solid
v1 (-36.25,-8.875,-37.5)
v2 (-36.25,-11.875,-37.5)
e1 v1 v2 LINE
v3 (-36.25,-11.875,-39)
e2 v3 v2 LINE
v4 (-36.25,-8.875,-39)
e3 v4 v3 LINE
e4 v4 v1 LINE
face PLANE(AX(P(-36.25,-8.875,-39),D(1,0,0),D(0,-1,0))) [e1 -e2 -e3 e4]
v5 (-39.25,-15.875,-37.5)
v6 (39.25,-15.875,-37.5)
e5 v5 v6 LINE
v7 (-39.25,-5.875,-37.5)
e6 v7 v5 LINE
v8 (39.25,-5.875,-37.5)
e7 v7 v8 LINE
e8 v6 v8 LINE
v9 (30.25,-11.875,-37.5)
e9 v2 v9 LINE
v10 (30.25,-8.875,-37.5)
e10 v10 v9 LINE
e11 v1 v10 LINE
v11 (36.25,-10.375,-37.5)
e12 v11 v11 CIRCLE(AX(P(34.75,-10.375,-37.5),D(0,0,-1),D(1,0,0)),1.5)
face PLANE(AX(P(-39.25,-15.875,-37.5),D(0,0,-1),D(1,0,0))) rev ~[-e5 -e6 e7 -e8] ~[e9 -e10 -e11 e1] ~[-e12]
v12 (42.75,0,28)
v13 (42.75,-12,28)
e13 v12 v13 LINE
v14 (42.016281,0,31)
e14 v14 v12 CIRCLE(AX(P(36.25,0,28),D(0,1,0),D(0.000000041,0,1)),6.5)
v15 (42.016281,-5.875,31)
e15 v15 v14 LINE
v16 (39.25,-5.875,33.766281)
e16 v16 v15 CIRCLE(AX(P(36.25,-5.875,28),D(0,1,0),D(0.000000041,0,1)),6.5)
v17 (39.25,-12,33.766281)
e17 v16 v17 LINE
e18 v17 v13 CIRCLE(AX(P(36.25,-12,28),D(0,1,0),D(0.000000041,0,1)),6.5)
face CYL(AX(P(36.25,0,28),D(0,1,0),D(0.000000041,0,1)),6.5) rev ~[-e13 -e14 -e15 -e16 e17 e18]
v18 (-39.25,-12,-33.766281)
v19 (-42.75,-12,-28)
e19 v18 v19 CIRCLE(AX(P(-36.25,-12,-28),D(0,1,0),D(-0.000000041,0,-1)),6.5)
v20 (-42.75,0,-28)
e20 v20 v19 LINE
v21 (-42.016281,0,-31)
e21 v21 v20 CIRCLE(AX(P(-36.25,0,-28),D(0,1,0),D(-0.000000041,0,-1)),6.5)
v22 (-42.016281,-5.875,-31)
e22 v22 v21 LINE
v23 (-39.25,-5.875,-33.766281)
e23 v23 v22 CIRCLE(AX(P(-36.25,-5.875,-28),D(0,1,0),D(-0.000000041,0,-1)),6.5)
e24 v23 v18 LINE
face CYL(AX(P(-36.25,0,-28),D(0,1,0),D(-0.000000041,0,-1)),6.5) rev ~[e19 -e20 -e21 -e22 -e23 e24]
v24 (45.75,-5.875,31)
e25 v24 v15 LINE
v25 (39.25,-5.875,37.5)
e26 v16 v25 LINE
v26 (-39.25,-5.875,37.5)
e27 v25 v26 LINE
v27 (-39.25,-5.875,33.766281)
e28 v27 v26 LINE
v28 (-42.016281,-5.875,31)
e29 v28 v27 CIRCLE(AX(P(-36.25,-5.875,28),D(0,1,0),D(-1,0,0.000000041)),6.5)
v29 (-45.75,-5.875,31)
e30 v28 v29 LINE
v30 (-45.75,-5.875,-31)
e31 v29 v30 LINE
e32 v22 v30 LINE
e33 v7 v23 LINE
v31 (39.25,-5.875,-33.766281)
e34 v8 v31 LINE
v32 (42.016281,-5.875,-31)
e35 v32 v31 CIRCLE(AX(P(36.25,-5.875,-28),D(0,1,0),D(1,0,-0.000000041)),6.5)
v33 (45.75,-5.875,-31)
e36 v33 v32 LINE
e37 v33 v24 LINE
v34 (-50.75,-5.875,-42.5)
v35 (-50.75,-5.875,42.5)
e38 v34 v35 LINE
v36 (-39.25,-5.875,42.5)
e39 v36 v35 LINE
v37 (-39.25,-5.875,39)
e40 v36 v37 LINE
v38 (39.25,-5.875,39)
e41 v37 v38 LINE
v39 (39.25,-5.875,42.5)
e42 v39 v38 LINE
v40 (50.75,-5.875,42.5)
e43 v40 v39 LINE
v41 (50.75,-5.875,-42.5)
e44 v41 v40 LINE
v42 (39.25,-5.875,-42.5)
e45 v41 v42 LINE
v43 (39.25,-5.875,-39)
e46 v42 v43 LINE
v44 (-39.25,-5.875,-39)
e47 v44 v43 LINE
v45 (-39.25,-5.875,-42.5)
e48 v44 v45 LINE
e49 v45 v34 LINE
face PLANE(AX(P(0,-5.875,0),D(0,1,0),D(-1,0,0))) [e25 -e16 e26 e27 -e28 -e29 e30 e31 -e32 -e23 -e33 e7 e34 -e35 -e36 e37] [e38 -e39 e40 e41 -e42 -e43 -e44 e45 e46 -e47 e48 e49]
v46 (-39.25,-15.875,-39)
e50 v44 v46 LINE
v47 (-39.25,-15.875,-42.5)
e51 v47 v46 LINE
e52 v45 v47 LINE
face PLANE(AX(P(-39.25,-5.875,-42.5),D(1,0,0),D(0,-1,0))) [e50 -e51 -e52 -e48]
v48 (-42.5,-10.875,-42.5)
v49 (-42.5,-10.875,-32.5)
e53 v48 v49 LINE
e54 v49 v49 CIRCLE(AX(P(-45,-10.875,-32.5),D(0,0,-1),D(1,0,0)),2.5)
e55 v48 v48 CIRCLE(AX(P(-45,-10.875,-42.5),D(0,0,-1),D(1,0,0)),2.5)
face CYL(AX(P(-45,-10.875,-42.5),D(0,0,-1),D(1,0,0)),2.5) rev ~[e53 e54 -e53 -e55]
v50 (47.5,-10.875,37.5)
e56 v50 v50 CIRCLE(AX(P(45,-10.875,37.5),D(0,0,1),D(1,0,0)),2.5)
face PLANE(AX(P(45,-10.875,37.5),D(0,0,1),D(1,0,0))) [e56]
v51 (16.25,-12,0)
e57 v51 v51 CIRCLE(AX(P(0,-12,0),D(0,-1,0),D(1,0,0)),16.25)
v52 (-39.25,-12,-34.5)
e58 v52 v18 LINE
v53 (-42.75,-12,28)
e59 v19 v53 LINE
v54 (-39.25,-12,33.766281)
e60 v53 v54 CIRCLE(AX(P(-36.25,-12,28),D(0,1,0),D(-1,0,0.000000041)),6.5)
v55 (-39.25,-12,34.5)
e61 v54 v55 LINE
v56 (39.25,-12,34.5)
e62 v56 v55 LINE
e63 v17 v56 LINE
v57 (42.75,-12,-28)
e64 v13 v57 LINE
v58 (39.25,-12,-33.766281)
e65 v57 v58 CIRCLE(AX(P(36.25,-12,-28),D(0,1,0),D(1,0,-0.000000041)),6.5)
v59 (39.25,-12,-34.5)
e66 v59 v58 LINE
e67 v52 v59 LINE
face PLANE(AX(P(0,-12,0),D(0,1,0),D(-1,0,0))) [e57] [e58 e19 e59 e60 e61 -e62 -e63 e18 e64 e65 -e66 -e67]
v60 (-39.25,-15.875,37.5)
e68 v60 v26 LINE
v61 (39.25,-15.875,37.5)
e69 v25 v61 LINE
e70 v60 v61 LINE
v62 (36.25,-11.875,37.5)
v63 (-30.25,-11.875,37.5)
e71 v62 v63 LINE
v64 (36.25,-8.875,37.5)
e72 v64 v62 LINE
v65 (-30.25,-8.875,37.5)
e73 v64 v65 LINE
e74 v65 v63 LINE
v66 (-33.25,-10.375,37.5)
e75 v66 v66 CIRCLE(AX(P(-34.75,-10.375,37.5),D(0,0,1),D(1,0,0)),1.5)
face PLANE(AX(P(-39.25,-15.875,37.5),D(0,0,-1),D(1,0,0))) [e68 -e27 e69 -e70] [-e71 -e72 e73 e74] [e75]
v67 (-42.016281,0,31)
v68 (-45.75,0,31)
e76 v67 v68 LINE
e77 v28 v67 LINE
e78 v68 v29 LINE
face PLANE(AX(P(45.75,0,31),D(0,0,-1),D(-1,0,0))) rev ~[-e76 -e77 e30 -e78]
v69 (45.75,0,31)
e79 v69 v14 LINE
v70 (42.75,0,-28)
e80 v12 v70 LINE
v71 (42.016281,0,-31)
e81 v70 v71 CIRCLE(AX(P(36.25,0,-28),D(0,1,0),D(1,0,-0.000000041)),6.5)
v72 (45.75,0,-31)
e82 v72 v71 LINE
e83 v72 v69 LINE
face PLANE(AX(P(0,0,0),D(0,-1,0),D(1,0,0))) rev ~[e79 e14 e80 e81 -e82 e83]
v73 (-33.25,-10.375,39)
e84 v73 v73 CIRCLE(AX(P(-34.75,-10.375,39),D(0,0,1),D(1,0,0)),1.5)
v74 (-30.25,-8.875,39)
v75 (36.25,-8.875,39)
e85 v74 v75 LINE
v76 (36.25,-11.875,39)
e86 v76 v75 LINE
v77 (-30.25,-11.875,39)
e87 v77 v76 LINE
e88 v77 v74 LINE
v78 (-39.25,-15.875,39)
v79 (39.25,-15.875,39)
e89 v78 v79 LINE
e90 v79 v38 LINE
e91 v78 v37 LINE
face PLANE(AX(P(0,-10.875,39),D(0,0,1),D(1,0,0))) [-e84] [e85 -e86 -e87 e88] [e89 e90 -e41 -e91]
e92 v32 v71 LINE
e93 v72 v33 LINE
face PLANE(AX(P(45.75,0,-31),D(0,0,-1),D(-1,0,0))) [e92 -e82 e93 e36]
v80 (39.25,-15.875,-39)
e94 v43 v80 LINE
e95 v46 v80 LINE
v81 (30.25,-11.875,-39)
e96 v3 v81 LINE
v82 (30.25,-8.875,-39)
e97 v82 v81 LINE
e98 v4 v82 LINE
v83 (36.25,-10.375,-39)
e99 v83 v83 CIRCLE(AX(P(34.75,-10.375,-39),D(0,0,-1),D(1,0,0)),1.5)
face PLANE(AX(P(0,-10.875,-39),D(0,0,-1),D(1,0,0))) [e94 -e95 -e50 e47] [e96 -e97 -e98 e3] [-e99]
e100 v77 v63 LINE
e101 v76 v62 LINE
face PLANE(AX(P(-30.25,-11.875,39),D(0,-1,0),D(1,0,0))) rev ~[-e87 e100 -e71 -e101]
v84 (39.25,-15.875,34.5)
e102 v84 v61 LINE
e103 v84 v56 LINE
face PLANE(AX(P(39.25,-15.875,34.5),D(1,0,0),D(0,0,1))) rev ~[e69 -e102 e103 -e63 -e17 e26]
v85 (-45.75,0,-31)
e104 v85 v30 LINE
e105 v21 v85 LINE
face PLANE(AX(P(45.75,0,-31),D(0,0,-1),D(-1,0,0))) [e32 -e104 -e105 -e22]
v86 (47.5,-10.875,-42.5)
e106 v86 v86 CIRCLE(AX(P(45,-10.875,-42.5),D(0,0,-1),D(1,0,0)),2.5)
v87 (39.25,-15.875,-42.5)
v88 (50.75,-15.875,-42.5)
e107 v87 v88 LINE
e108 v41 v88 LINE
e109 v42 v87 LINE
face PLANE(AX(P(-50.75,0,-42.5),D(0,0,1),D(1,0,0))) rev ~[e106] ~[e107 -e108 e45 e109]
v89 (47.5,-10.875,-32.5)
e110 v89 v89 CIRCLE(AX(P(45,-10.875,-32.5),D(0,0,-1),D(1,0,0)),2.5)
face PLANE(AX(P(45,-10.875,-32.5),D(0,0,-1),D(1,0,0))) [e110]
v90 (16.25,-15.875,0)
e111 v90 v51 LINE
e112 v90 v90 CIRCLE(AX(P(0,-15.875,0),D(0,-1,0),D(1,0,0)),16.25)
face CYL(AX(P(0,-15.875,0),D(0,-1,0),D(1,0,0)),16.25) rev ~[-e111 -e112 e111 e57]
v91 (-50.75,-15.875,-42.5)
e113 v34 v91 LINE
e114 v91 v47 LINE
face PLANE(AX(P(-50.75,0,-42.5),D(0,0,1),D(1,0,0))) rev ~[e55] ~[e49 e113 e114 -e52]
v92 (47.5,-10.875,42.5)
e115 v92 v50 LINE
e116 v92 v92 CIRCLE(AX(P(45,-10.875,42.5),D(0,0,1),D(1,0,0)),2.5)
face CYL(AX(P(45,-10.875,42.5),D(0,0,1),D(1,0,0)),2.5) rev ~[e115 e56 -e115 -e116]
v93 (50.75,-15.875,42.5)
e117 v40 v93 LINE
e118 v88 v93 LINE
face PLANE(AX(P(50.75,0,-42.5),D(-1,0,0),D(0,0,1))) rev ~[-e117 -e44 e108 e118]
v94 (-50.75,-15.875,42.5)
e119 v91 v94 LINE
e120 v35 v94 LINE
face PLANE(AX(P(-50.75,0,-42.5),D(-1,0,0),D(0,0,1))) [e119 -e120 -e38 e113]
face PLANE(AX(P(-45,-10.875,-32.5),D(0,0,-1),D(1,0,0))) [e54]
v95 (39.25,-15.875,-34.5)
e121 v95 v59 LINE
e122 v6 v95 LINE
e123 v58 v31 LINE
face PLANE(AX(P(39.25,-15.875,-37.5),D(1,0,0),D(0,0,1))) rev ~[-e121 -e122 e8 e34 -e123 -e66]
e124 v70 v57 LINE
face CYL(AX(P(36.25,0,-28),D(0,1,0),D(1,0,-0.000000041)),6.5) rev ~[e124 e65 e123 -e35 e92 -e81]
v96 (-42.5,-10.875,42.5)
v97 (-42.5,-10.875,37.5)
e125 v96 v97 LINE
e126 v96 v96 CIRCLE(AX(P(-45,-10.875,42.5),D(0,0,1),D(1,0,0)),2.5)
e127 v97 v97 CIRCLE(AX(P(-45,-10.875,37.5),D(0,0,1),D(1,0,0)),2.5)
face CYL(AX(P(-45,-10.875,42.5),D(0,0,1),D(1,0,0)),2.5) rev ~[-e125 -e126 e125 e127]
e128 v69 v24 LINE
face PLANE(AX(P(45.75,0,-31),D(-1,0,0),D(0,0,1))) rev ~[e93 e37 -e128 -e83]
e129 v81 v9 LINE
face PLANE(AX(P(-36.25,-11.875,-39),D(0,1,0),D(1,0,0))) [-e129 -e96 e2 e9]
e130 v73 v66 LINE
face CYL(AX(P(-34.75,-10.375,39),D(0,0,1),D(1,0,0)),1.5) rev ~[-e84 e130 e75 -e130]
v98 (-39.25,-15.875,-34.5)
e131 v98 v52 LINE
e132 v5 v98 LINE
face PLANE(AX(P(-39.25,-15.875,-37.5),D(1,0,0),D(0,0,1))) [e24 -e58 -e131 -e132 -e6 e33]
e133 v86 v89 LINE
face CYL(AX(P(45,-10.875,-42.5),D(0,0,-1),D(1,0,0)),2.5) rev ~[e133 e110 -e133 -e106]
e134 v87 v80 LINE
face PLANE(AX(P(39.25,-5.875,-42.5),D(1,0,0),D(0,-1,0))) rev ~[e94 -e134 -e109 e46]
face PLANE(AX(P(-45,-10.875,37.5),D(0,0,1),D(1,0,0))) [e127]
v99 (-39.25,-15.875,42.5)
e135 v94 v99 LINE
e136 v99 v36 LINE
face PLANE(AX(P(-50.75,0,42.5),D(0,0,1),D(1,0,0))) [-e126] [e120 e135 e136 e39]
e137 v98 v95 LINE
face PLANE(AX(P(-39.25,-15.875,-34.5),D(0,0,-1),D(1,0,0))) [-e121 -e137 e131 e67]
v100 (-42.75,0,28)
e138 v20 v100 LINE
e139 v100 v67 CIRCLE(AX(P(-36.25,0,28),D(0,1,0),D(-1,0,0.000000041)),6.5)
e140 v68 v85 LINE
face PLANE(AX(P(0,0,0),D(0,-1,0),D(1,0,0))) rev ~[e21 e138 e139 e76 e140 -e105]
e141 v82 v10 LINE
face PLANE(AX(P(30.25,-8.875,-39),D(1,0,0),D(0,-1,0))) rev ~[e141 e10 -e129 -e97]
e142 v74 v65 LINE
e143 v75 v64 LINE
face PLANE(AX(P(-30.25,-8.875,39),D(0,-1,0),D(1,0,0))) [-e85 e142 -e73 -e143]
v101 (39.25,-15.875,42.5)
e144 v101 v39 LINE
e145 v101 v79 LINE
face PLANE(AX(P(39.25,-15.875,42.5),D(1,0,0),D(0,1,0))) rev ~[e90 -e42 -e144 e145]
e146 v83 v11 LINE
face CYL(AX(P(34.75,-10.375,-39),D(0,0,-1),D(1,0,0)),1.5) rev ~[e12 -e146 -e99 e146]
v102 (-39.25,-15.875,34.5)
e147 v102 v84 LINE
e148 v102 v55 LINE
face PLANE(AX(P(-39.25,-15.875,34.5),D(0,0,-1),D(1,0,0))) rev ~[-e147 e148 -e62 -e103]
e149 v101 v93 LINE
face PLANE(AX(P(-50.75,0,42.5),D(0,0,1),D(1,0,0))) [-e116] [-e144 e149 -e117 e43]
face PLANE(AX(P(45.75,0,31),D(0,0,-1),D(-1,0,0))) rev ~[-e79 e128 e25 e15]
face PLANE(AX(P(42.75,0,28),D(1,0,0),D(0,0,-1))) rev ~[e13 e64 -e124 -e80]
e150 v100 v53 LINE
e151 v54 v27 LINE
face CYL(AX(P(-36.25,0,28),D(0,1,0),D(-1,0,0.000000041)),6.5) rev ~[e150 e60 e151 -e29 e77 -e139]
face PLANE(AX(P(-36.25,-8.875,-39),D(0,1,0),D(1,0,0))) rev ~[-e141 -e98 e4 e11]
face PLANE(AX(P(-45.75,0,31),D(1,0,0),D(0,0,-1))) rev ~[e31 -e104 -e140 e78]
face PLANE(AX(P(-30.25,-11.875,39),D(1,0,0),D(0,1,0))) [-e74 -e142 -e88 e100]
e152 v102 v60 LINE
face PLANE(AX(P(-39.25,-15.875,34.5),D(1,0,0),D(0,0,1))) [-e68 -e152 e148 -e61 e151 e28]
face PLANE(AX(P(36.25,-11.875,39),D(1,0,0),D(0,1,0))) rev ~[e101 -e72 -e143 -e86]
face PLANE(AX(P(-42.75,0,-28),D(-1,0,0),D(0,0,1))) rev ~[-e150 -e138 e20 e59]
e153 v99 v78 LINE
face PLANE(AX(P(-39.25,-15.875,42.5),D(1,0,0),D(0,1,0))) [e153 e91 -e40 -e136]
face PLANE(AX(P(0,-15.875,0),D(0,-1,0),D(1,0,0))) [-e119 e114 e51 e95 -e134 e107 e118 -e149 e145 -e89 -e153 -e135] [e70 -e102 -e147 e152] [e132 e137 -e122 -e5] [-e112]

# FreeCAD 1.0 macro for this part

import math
import FreeCAD as App
import Part
import Sketcher

V = App.Vector
Q = App.Units.Quantity

doc = App.newDocument("Part")
body = doc.addObject("PartDesign::Body", "Body")

# Sketch on XZ plane
sketch1 = body.newObject("Sketcher::SketchObject", "Sketch")
sketch1.AttachmentSupport = (doc.getObject("XZ_Plane"), [""])
sketch1.MapMode = "FlatFace"
sketch1.addGeometry([
    Part.LineSegment(V(-50.75, 42.5, 0), V(-50.75, -42.5, 0)),
    Part.LineSegment(V(-50.75, -42.5, 0), V(50.75, -42.5, 0)),
    Part.LineSegment(V(50.75, -42.5, 0), V(50.75, 42.5, 0)),
    Part.LineSegment(V(50.75, 42.5, 0), V(-50.75, 42.5, 0)),
], False)
sketch1.addConstraint([
    Sketcher.Constraint("Coincident", 0, 2, 1, 1),
    Sketcher.Constraint("Coincident", 1, 2, 2, 1),
    Sketcher.Constraint("Coincident", 2, 2, 3, 1),
    Sketcher.Constraint("Coincident", 3, 2, 0, 1),
    Sketcher.Constraint("Vertical", 0),
    Sketcher.Constraint("Horizontal", 1),
    Sketcher.Constraint("Vertical", 2),
    Sketcher.Constraint("Horizontal", 3),
    Sketcher.Constraint("Symmetric", 0, 2, 2, 2, -1, 1),
    Sketcher.Constraint("DistanceY", 0, 2, 0, 1, Q("85 mm")),
    Sketcher.Constraint("DistanceX", 1, 1, 1, 2, Q("101.5 mm")),
])
pad1 = body.newObject("PartDesign::Pad", "Pad")
pad1.Profile = sketch1
pad1.Length = 15.875

# Sketch on XZ plane
sketch2 = body.newObject("Sketcher::SketchObject", "Sketch001")
sketch2.AttachmentSupport = (doc.getObject("XZ_Plane"), [""])
sketch2.MapMode = "FlatFace"
sketch2.AttachmentOffset = App.Placement(V(0, 0, 15.875), App.Rotation())
sketch2.addGeometry(Part.Circle(V(0, 0, 0), V(0, 0, 1), 16.25), False)
sketch2.addConstraint([
    Sketcher.Constraint("Coincident", 0, 3, -1, 1),
    Sketcher.Constraint("Diameter", 0, Q("32.5 mm")),
])
pocket1 = body.newObject("PartDesign::Pocket", "Pocket")
pocket1.Profile = sketch2
pocket1.Length = 25

# Sketch on XZ plane
sketch3 = body.newObject("Sketcher::SketchObject", "Sketch002")
sketch3.AttachmentSupport = (doc.getObject("XZ_Plane"), [""])
sketch3.MapMode = "FlatFace"
sketch3.addGeometry([
    Part.LineSegment(V(50.75, 42.5, 0), V(50.75, -42.5, 0)),  # 0
    Part.LineSegment(V(50.75, -42.5, 0), V(-50.75, -42.5, 0)),  # 1
    Part.LineSegment(V(-50.75, -42.5, 0), V(-50.75, 42.5, 0)),  # 2
    Part.LineSegment(V(-50.75, 42.5, 0), V(50.75, 42.5, 0)),  # 3
    Part.ArcOfCircle(Part.Circle(V(39.25, -31, 0), V(0, 0, 1), 6.5), math.radians(-89.999998), math.radians(-0.000002)),  # 4
    Part.LineSegment(V(45.75, -31, 0), V(45.75, 31, 0)),  # 5
    Part.ArcOfCircle(Part.Circle(V(39.25, 31, 0), V(0, 0, 1), 6.5), math.radians(0.000002), math.radians(89.999998)),  # 6
    Part.LineSegment(V(39.25, 37.5, 0), V(-39.25, 37.5, 0)),  # 7
    Part.ArcOfCircle(Part.Circle(V(-39.25, 31, 0), V(0, 0, 1), 6.5), math.radians(90.000002), math.radians(179.999998)),  # 8
    Part.LineSegment(V(-45.75, 31, 0), V(-45.75, -31, 0)),  # 9
    Part.ArcOfCircle(Part.Circle(V(-39.25, -31, 0), V(0, 0, 1), 6.5), math.radians(-179.999998), math.radians(-90.000002)),  # 10
    Part.LineSegment(V(-39.25, -37.5, 0), V(39.25, -37.5, 0)),  # 11
], False)
sketch3.addConstraint([
    Sketcher.Constraint("Coincident", 0, 2, 1, 1),
    Sketcher.Constraint("Coincident", 1, 2, 2, 1),
    Sketcher.Constraint("Coincident", 2, 2, 3, 1),
    Sketcher.Constraint("Coincident", 3, 2, 0, 1),
    Sketcher.Constraint("Tangent", 4, 2, 5, 1),
    Sketcher.Constraint("Tangent", 5, 2, 6, 1),
    Sketcher.Constraint("Tangent", 6, 2, 7, 1),
    Sketcher.Constraint("Tangent", 7, 2, 8, 1),
    Sketcher.Constraint("Tangent", 8, 2, 9, 1),
    Sketcher.Constraint("Tangent", 9, 2, 10, 1),
    Sketcher.Constraint("Tangent", 10, 2, 11, 1),
    Sketcher.Constraint("Tangent", 11, 2, 4, 1),
    Sketcher.Constraint("Vertical", 0),
    Sketcher.Constraint("Horizontal", 1),
    Sketcher.Constraint("Vertical", 2),
    Sketcher.Constraint("Horizontal", 3),
    Sketcher.Constraint("Vertical", 5),
    Sketcher.Constraint("Horizontal", 7),
    Sketcher.Constraint("Vertical", 9),
    Sketcher.Constraint("Horizontal", 11),
    Sketcher.Constraint("Equal", 4, 6),
    Sketcher.Constraint("Equal", 6, 8),
    Sketcher.Constraint("Equal", 8, 10),
    Sketcher.Constraint("Symmetric", 4, 3, 8, 3, -1, 1),
    Sketcher.Constraint("Symmetric", 0, 2, 2, 2, -1, 1),
    Sketcher.Constraint("Radius", 4, Q("6.5 mm")),
    Sketcher.Constraint("DistanceY", 0, 2, 0, 1, Q("85 mm")),
    Sketcher.Constraint("DistanceY", 5, 1, 5, 2, Q("62 mm")),
    Sketcher.Constraint("DistanceX", 1, 2, 1, 1, Q("101.5 mm")),
    Sketcher.Constraint("DistanceX", 7, 2, 7, 1, Q("78.5 mm")),
])
pocket2 = body.newObject("PartDesign::Pocket", "Pocket001")
pocket2.Profile = sketch3
pocket2.Length = 5.875
pocket2.Reversed = True

# Sketch on XZ plane
sketch4 = body.newObject("Sketcher::SketchObject", "Sketch003")
sketch4.AttachmentSupport = (doc.getObject("XZ_Plane"), [""])
sketch4.MapMode = "FlatFace"
sketch4.addGeometry([
    Part.ArcOfCircle(Part.Circle(V(36.25, 28, 0), V(0, 0, 1), 6.5), math.radians(0.000002), math.radians(89.999998)),  # 0
    Part.LineSegment(V(42.75, 28, 0), V(42.75, -28, 0)),  # 1
    Part.ArcOfCircle(Part.Circle(V(36.25, -28, 0), V(0, 0, 1), 6.5), math.radians(-89.999998), math.radians(-0.000002)),  # 2
    Part.LineSegment(V(36.25, -34.5, 0), V(-36.25, -34.5, 0)),  # 3
    Part.ArcOfCircle(Part.Circle(V(-36.25, -28, 0), V(0, 0, 1), 6.5), math.radians(-179.999998), math.radians(-90.000002)),  # 4
    Part.LineSegment(V(-42.75, -28, 0), V(-42.75, 28, 0)),  # 5
    Part.ArcOfCircle(Part.Circle(V(-36.25, 28, 0), V(0, 0, 1), 6.5), math.radians(90.000002), math.radians(179.999998)),  # 6
    Part.LineSegment(V(-36.25, 34.5, 0), V(36.25, 34.5, 0)),  # 7
], False)
sketch4.addConstraint([
    Sketcher.Constraint("Tangent", 0, 1, 1, 1),
    Sketcher.Constraint("Tangent", 1, 2, 2, 2),
    Sketcher.Constraint("Tangent", 2, 1, 3, 1),
    Sketcher.Constraint("Tangent", 3, 2, 4, 2),
    Sketcher.Constraint("Tangent", 4, 1, 5, 1),
    Sketcher.Constraint("Tangent", 5, 2, 6, 2),
    Sketcher.Constraint("Tangent", 6, 1, 7, 1),
    Sketcher.Constraint("Tangent", 7, 2, 0, 2),
    Sketcher.Constraint("Vertical", 1),
    Sketcher.Constraint("Horizontal", 3),
    Sketcher.Constraint("Vertical", 5),
    Sketcher.Constraint("Horizontal", 7),
    Sketcher.Constraint("Equal", 0, 2),
    Sketcher.Constraint("Equal", 2, 4),
    Sketcher.Constraint("Equal", 4, 6),
    Sketcher.Constraint("Symmetric", 0, 3, 4, 3, -1, 1),
    Sketcher.Constraint("Radius", 0, Q("6.5 mm")),
    Sketcher.Constraint("DistanceY", 1, 2, 1, 1, Q("56 mm")),
    Sketcher.Constraint("DistanceX", 3, 2, 3, 1, Q("72.5 mm")),
])
pocket3 = body.newObject("PartDesign::Pocket", "Pocket002")
pocket3.Profile = sketch4
pocket3.Length = 12
pocket3.Reversed = True

# Sketch on XY plane
sketch5 = body.newObject("Sketcher::SketchObject", "Sketch004")
sketch5.AttachmentSupport = (doc.getObject("XY_Plane"), [""])
sketch5.MapMode = "FlatFace"
sketch5.AttachmentOffset = App.Placement(V(0, 0, 42.5), App.Rotation())
sketch5.addGeometry([
    Part.LineSegment(V(-39.25, -5.875, 0), V(-39.25, -15.875, 0)),
    Part.LineSegment(V(-39.25, -15.875, 0), V(39.25, -15.875, 0)),
    Part.LineSegment(V(39.25, -15.875, 0), V(39.25, -5.875, 0)),
    Part.LineSegment(V(39.25, -5.875, 0), V(-39.25, -5.875, 0)),
], False)
sketch5.addConstraint([
    Sketcher.Constraint("Coincident", 0, 2, 1, 1),
    Sketcher.Constraint("Coincident", 1, 2, 2, 1),
    Sketcher.Constraint("Coincident", 2, 2, 3, 1),
    Sketcher.Constraint("Coincident", 3, 2, 0, 1),
    Sketcher.Constraint("Vertical", 0),
    Sketcher.Constraint("Horizontal", 1),
    Sketcher.Constraint("Vertical", 2),
    Sketcher.Constraint("Horizontal", 3),
    Sketcher.Constraint("DistanceY", 0, 2, 0, 1, Q("10 mm")),
    Sketcher.Constraint("DistanceX", 1, 1, 1, 2, Q("78.5 mm")),
    Sketcher.Constraint("DistanceX", 0, 2, -1, 1, Q("39.25 mm")),
    Sketcher.Constraint("DistanceY", 0, 2, -1, 1, Q("15.875 mm")),
])
pocket4 = body.newObject("PartDesign::Pocket", "Pocket003")
pocket4.Profile = sketch5
pocket4.Length = 3.5

# Sketch on XY plane
sketch6 = body.newObject("Sketcher::SketchObject", "Sketch005")
sketch6.AttachmentSupport = (doc.getObject("XY_Plane"), [""])
sketch6.MapMode = "FlatFace"
sketch6.AttachmentOffset = App.Placement(V(0, 0, -42.5), App.Rotation())
sketch6.addGeometry([
    Part.LineSegment(V(-39.25, -15.875, 0), V(-39.25, -5.875, 0)),
    Part.LineSegment(V(-39.25, -5.875, 0), V(39.25, -5.875, 0)),
    Part.LineSegment(V(39.25, -5.875, 0), V(39.25, -15.875, 0)),
    Part.LineSegment(V(39.25, -15.875, 0), V(-39.25, -15.875, 0)),
], False)
sketch6.addConstraint([
    Sketcher.Constraint("Coincident", 0, 2, 1, 1),
    Sketcher.Constraint("Coincident", 1, 2, 2, 1),
    Sketcher.Constraint("Coincident", 2, 2, 3, 1),
    Sketcher.Constraint("Coincident", 3, 2, 0, 1),
    Sketcher.Constraint("Vertical", 0),
    Sketcher.Constraint("Horizontal", 1),
    Sketcher.Constraint("Vertical", 2),
    Sketcher.Constraint("Horizontal", 3),
    Sketcher.Constraint("DistanceY", 0, 1, 0, 2, Q("10 mm")),
    Sketcher.Constraint("DistanceX", 1, 1, 1, 2, Q("78.5 mm")),
    Sketcher.Constraint("DistanceX", 0, 2, -1, 1, Q("39.25 mm")),
    Sketcher.Constraint("DistanceY", 0, 2, -1, 1, Q("5.875 mm")),
])
pocket5 = body.newObject("PartDesign::Pocket", "Pocket004")
pocket5.Profile = sketch6
pocket5.Length = 3.5
pocket5.Reversed = True

# Sketch on XZ plane
sketch7 = body.newObject("Sketcher::SketchObject", "Sketch006")
sketch7.AttachmentSupport = (doc.getObject("XZ_Plane"), [""])
sketch7.MapMode = "FlatFace"
sketch7.AttachmentOffset = App.Placement(V(0, 0, 15.875), App.Rotation())
sketch7.addGeometry([
    Part.LineSegment(V(-39.25, 37.5, 0), V(-39.25, 34.5, 0)),  # 0
    Part.LineSegment(V(-39.25, 34.5, 0), V(39.25, 34.5, 0)),  # 1
    Part.LineSegment(V(39.25, 34.5, 0), V(39.25, 37.5, 0)),  # 2
    Part.LineSegment(V(39.25, 37.5, 0), V(-39.25, 37.5, 0)),  # 3
    Part.LineSegment(V(-39.25, -34.5, 0), V(-39.25, -37.5, 0)),  # 4
    Part.LineSegment(V(-39.25, -37.5, 0), V(39.25, -37.5, 0)),  # 5
    Part.LineSegment(V(39.25, -37.5, 0), V(39.25, -34.5, 0)),  # 6
    Part.LineSegment(V(39.25, -34.5, 0), V(-39.25, -34.5, 0)),  # 7
], False)
sketch7.addConstraint([
    Sketcher.Constraint("Coincident", 0, 2, 1, 1),
    Sketcher.Constraint("Coincident", 1, 2, 2, 1),
    Sketcher.Constraint("Coincident", 2, 2, 3, 1),
    Sketcher.Constraint("Coincident", 3, 2, 0, 1),
    Sketcher.Constraint("Coincident", 4, 2, 5, 1),
    Sketcher.Constraint("Coincident", 5, 2, 6, 1),
    Sketcher.Constraint("Coincident", 6, 2, 7, 1),
    Sketcher.Constraint("Coincident", 7, 2, 4, 1),
    Sketcher.Constraint("Vertical", 0),
    Sketcher.Constraint("Horizontal", 1),
    Sketcher.Constraint("Vertical", 2),
    Sketcher.Constraint("Horizontal", 3),
    Sketcher.Constraint("Vertical", 4),
    Sketcher.Constraint("Horizontal", 5),
    Sketcher.Constraint("Vertical", 6),
    Sketcher.Constraint("Horizontal", 7),
    Sketcher.Constraint("Symmetric", 2, 2, 4, 2, -1, 1),
    Sketcher.Constraint("Symmetric", 0, 2, 6, 2, -1, 1),
    Sketcher.Constraint("Vertical", 3, 2, 4, 2),
    Sketcher.Constraint("DistanceY", 0, 2, 0, 1, Q("3 mm")),
    Sketcher.Constraint("DistanceX", 1, 1, 1, 2, Q("78.5 mm")),
    Sketcher.Constraint("DistanceY", 4, 2, 0, 2, Q("72 mm")),
])
pocket6 = body.newObject("PartDesign::Pocket", "Pocket005")
pocket6.Profile = sketch7
pocket6.Length = 25

# Sketch on XY plane
sketch8 = body.newObject("Sketcher::SketchObject", "Sketch007")
sketch8.AttachmentSupport = (doc.getObject("XY_Plane"), [""])
sketch8.MapMode = "FlatFace"
sketch8.AttachmentOffset = App.Placement(V(0, 0, 39), App.Rotation())
sketch8.addGeometry([
    Part.LineSegment(V(-39.25, 11.694206, 0), V(-39.25, -5.875, 0)),
    Part.LineSegment(V(-39.25, -5.875, 0), V(39.25, -5.875, 0)),
    Part.LineSegment(V(39.25, -5.875, 0), V(39.25, 11.694206, 0)),
    Part.LineSegment(V(39.25, 11.694206, 0), V(-39.25, 11.694206, 0)),
], False)
sketch8.addConstraint([
    Sketcher.Constraint("Coincident", 0, 2, 1, 1),
    Sketcher.Constraint("Coincident", 1, 2, 2, 1),
    Sketcher.Constraint("Coincident", 2, 2, 3, 1),
    Sketcher.Constraint("Coincident", 3, 2, 0, 1),
    Sketcher.Constraint("Vertical", 0),
    Sketcher.Constraint("Horizontal", 1),
    Sketcher.Constraint("Vertical", 2),
    Sketcher.Constraint("Horizontal", 3),
    Sketcher.Constraint("DistanceX", 1, 1, 1, 2, Q("78.5 mm")),
    Sketcher.Constraint("DistanceX", 0, 2, -1, 1, Q("39.25 mm")),
    Sketcher.Constraint("DistanceY", 0, 2, -1, 1, Q("5.875 mm")),
    Sketcher.Constraint("DistanceY", 0, 2, 0, 1, Q("17.569206 mm")),
])
pocket7 = body.newObject("PartDesign::Pocket", "Pocket006")
pocket7.Profile = sketch8
pocket7.Length = 200

# Sketch on XZ plane
sketch9 = body.newObject("Sketcher::SketchObject", "Sketch008")
sketch9.AttachmentSupport = (doc.getObject("XZ_Plane"), [""])
sketch9.MapMode = "FlatFace"
sketch9.AttachmentOffset = App.Placement(V(0, 0, 5.875), App.Rotation())
sketch9.addGeometry([
    Part.LineSegment(V(39.25, 37.5, 0), V(39.25, -37.5, 0)),
    Part.LineSegment(V(39.25, -37.5, 0), V(-39.25, -37.5, 0)),
    Part.LineSegment(V(-39.25, -37.5, 0), V(-39.25, 37.5, 0)),
    Part.LineSegment(V(-39.25, 37.5, 0), V(39.25, 37.5, 0)),
], False)
sketch9.addConstraint([
    Sketcher.Constraint("Coincident", 0, 2, 1, 1),
    Sketcher.Constraint("Coincident", 1, 2, 2, 1),
    Sketcher.Constraint("Coincident", 2, 2, 3, 1),
    Sketcher.Constraint("Coincident", 3, 2, 0, 1),
    Sketcher.Constraint("Vertical", 0),
    Sketcher.Constraint("Horizontal", 1),
    Sketcher.Constraint("Vertical", 2),
    Sketcher.Constraint("Horizontal", 3),
    Sketcher.Constraint("Symmetric", 0, 2, 2, 2, -1, 1),
    Sketcher.Constraint("DistanceY", 0, 2, 0, 1, Q("75 mm")),
    Sketcher.Constraint("DistanceX", 1, 2, 1, 1, Q("78.5 mm")),
])
pocket8 = body.newObject("PartDesign::Pocket", "Pocket007")
pocket8.Profile = sketch9
pocket8.Length = 6.125
pocket8.Reversed = True

# Sketch on XY plane
sketch10 = body.newObject("Sketcher::SketchObject", "Sketch009")
sketch10.AttachmentSupport = (doc.getObject("XY_Plane"), [""])
sketch10.MapMode = "FlatFace"
sketch10.AttachmentOffset = App.Placement(V(0, 0, 39), App.Rotation())
sketch10.addGeometry([
    Part.Circle(V(-34.75, -10.375, 0), V(0, 0, 1), 1.5),  # 0
    Part.LineSegment(V(-30.25, -8.875, 0), V(-30.25, -11.875, 0)),  # 1
    Part.LineSegment(V(-30.25, -11.875, 0), V(36.25, -11.875, 0)),  # 2
    Part.LineSegment(V(36.25, -11.875, 0), V(36.25, -8.875, 0)),  # 3
    Part.LineSegment(V(36.25, -8.875, 0), V(-30.25, -8.875, 0)),  # 4
], False)
sketch10.addConstraint([
    Sketcher.Constraint("Coincident", 1, 2, 2, 1),
    Sketcher.Constraint("Coincident", 2, 2, 3, 1),
    Sketcher.Constraint("Coincident", 3, 2, 4, 1),
    Sketcher.Constraint("Coincident", 4, 2, 1, 1),
    Sketcher.Constraint("Vertical", 1),
    Sketcher.Constraint("Horizontal", 2),
    Sketcher.Constraint("Vertical", 3),
    Sketcher.Constraint("Horizontal", 4),
    Sketcher.Constraint("Diameter", 0, Q("3 mm")),
    Sketcher.Constraint("DistanceY", 1, 2, 1, 1, Q("3 mm")),
    Sketcher.Constraint("DistanceX", 2, 1, 2, 2, Q("66.5 mm")),
    Sketcher.Constraint("DistanceX", 0, 3, 2, 2, Q("71 mm")),
    Sketcher.Constraint("DistanceY", 1, 2, 0, 3, Q("1.5 mm")),
    Sketcher.Constraint("DistanceX", 0, 3, -1, 1, Q("34.75 mm")),
    Sketcher.Constraint("DistanceY", 0, 3, -1, 1, Q("10.375 mm")),
])
pocket9 = body.newObject("PartDesign::Pocket", "Pocket008")
pocket9.Profile = sketch10
pocket9.Length = 2

# Sketch on XY plane
sketch11 = body.newObject("Sketcher::SketchObject", "Sketch010")
sketch11.AttachmentSupport = (doc.getObject("XY_Plane"), [""])
sketch11.MapMode = "FlatFace"
sketch11.AttachmentOffset = App.Placement(V(0, 0, -39), App.Rotation())
sketch11.addGeometry([
    Part.Circle(V(34.75, -10.375, 0), V(0, 0, 1), 1.5),  # 0
    Part.LineSegment(V(-36.25, -11.875, 0), V(-36.25, -8.875, 0)),  # 1
    Part.LineSegment(V(-36.25, -8.875, 0), V(30.25, -8.875, 0)),  # 2
    Part.LineSegment(V(30.25, -8.875, 0), V(30.25, -11.875, 0)),  # 3
    Part.LineSegment(V(30.25, -11.875, 0), V(-36.25, -11.875, 0)),  # 4
], False)
sketch11.addConstraint([
    Sketcher.Constraint("Coincident", 1, 2, 2, 1),
    Sketcher.Constraint("Coincident", 2, 2, 3, 1),
    Sketcher.Constraint("Coincident", 3, 2, 4, 1),
    Sketcher.Constraint("Coincident", 4, 2, 1, 1),
    Sketcher.Constraint("Vertical", 1),
    Sketcher.Constraint("Horizontal", 2),
    Sketcher.Constraint("Vertical", 3),
    Sketcher.Constraint("Horizontal", 4),
    Sketcher.Constraint("Diameter", 0, Q("3 mm")),
    Sketcher.Constraint("DistanceY", 1, 1, 1, 2, Q("3 mm")),
    Sketcher.Constraint("DistanceX", 2, 1, 2, 2, Q("66.5 mm")),
    Sketcher.Constraint("DistanceX", 1, 2, 0, 3, Q("71 mm")),
    Sketcher.Constraint("DistanceY", 0, 3, 1, 2, Q("1.5 mm")),
    Sketcher.Constraint("DistanceX", -1, 1, 0, 3, Q("34.75 mm")),
    Sketcher.Constraint("DistanceY", 0, 3, -1, 1, Q("10.375 mm")),
])
pocket10 = body.newObject("PartDesign::Pocket", "Pocket009")
pocket10.Profile = sketch11
pocket10.Length = 2
pocket10.Reversed = True

# Sketch on XY plane
sketch12 = body.newObject("Sketcher::SketchObject", "Sketch011")
sketch12.AttachmentSupport = (doc.getObject("XY_Plane"), [""])
sketch12.MapMode = "FlatFace"
sketch12.AttachmentOffset = App.Placement(V(0, 0, -42.5), App.Rotation())
sketch12.addGeometry(Part.Circle(V(-45, -10.875, 0), V(0, 0, 1), 2.5), False)
sketch12.addConstraint([
    Sketcher.Constraint("Diameter", 0, Q("5 mm")),
    Sketcher.Constraint("DistanceX", 0, 3, -1, 1, Q("45 mm")),
    Sketcher.Constraint("DistanceY", 0, 3, -1, 1, Q("10.875 mm")),
])
pocket11 = body.newObject("PartDesign::Pocket", "Pocket010")
pocket11.Profile = sketch12
pocket11.Length = 10
pocket11.Reversed = True

# Sketch on XY plane
sketch13 = body.newObject("Sketcher::SketchObject", "Sketch012")
sketch13.AttachmentSupport = (doc.getObject("XY_Plane"), [""])
sketch13.MapMode = "FlatFace"
sketch13.AttachmentOffset = App.Placement(V(0, 0, -42.5), App.Rotation())
sketch13.addGeometry(Part.Circle(V(45, -10.875, 0), V(0, 0, 1), 2.5), False)
sketch13.addConstraint([
    Sketcher.Constraint("Diameter", 0, Q("5 mm")),
    Sketcher.Constraint("DistanceX", -1, 1, 0, 3, Q("45 mm")),
    Sketcher.Constraint("DistanceY", 0, 3, -1, 1, Q("10.875 mm")),
])
pocket12 = body.newObject("PartDesign::Pocket", "Pocket011")
pocket12.Profile = sketch13
pocket12.Length = 10
pocket12.Reversed = True

# Sketch on XY plane
sketch14 = body.newObject("Sketcher::SketchObject", "Sketch013")
sketch14.AttachmentSupport = (doc.getObject("XY_Plane"), [""])
sketch14.MapMode = "FlatFace"
sketch14.AttachmentOffset = App.Placement(V(0, 0, 42.5), App.Rotation())
sketch14.addGeometry(Part.Circle(V(-45, -10.875, 0), V(0, 0, 1), 2.5), False)
sketch14.addConstraint([
    Sketcher.Constraint("Diameter", 0, Q("5 mm")),
    Sketcher.Constraint("DistanceX", 0, 3, -1, 1, Q("45 mm")),
    Sketcher.Constraint("DistanceY", 0, 3, -1, 1, Q("10.875 mm")),
])
pocket13 = body.newObject("PartDesign::Pocket", "Pocket012")
pocket13.Profile = sketch14
pocket13.Length = 5

# Sketch on XY plane
sketch15 = body.newObject("Sketcher::SketchObject", "Sketch014")
sketch15.AttachmentSupport = (doc.getObject("XY_Plane"), [""])
sketch15.MapMode = "FlatFace"
sketch15.AttachmentOffset = App.Placement(V(0, 0, 42.5), App.Rotation())
sketch15.addGeometry(Part.Circle(V(45, -10.875, 0), V(0, 0, 1), 2.5), False)
sketch15.addConstraint([
    Sketcher.Constraint("Diameter", 0, Q("5 mm")),
    Sketcher.Constraint("DistanceX", -1, 1, 0, 3, Q("45 mm")),
    Sketcher.Constraint("DistanceY", 0, 3, -1, 1, Q("10.875 mm")),
])
pocket14 = body.newObject("PartDesign::Pocket", "Pocket013")
pocket14.Profile = sketch15
pocket14.Length = 5

# Sketch on XZ plane
sketch16 = body.newObject("Sketcher::SketchObject", "Sketch015")
sketch16.AttachmentSupport = (doc.getObject("XZ_Plane"), [""])
sketch16.MapMode = "FlatFace"
sketch16.addGeometry([
    Part.LineSegment(V(45.75, 37.951566, 0), V(45.75, 31, 0)),  # 0
    Part.LineSegment(V(45.75, 31, 0), V(-45.82778, 31, 0)),  # 1
    Part.LineSegment(V(-45.82778, 31, 0), V(-45.82778, 37.951566, 0)),  # 2
    Part.LineSegment(V(-45.82778, 37.951566, 0), V(45.75, 37.951566, 0)),  # 3
    Part.LineSegment(V(45.75, -31, 0), V(45.75, -40.166792, 0)),  # 4
    Part.LineSegment(V(45.75, -40.166792, 0), V(-47.297712, -40.166792, 0)),  # 5
    Part.LineSegment(V(-47.297712, -40.166792, 0), V(-47.297712, -31, 0)),  # 6
    Part.LineSegment(V(-47.297712, -31, 0), V(45.75, -31, 0)),  # 7
], False)
sketch16.addConstraint([
    Sketcher.Constraint("Coincident", 0, 2, 1, 1),
    Sketcher.Constraint("Coincident", 1, 2, 2, 1),
    Sketcher.Constraint("Coincident", 2, 2, 3, 1),
    Sketcher.Constraint("Coincident", 3, 2, 0, 1),
    Sketcher.Constraint("Coincident", 4, 2, 5, 1),
    Sketcher.Constraint("Coincident", 5, 2, 6, 1),
    Sketcher.Constraint("Coincident", 6, 2, 7, 1),
    Sketcher.Constraint("Coincident", 7, 2, 4, 1),
    Sketcher.Constraint("Vertical", 0),
    Sketcher.Constraint("Horizontal", 1),
    Sketcher.Constraint("Vertical", 2),
    Sketcher.Constraint("Horizontal", 3),
    Sketcher.Constraint("Vertical", 4),
    Sketcher.Constraint("Horizontal", 5),
    Sketcher.Constraint("Vertical", 6),
    Sketcher.Constraint("Horizontal", 7),
    Sketcher.Constraint("Symmetric", 0, 2, 7, 2, -1),
    Sketcher.Constraint("DistanceY", -1, 1, 0, 2, Q("31 mm")),
    Sketcher.Constraint("DistanceX", -1, 1, 0, 2, Q("45.75 mm")),
    Sketcher.Constraint("DistanceX", 1, 2, 1, 1, Q("91.57778 mm")),
    Sketcher.Constraint("DistanceX", 5, 2, 5, 1, Q("93.047712 mm")),
    Sketcher.Constraint("DistanceY", 0, 2, 0, 1, Q("6.951566 mm")),
    Sketcher.Constraint("DistanceY", 4, 2, 4, 1, Q("9.166792 mm")),
])
pocket15 = body.newObject("PartDesign::Pocket", "Pocket014")
pocket15.Profile = sketch16
pocket15.Length = 5.875
pocket15.Reversed = True

doc.recompute()
